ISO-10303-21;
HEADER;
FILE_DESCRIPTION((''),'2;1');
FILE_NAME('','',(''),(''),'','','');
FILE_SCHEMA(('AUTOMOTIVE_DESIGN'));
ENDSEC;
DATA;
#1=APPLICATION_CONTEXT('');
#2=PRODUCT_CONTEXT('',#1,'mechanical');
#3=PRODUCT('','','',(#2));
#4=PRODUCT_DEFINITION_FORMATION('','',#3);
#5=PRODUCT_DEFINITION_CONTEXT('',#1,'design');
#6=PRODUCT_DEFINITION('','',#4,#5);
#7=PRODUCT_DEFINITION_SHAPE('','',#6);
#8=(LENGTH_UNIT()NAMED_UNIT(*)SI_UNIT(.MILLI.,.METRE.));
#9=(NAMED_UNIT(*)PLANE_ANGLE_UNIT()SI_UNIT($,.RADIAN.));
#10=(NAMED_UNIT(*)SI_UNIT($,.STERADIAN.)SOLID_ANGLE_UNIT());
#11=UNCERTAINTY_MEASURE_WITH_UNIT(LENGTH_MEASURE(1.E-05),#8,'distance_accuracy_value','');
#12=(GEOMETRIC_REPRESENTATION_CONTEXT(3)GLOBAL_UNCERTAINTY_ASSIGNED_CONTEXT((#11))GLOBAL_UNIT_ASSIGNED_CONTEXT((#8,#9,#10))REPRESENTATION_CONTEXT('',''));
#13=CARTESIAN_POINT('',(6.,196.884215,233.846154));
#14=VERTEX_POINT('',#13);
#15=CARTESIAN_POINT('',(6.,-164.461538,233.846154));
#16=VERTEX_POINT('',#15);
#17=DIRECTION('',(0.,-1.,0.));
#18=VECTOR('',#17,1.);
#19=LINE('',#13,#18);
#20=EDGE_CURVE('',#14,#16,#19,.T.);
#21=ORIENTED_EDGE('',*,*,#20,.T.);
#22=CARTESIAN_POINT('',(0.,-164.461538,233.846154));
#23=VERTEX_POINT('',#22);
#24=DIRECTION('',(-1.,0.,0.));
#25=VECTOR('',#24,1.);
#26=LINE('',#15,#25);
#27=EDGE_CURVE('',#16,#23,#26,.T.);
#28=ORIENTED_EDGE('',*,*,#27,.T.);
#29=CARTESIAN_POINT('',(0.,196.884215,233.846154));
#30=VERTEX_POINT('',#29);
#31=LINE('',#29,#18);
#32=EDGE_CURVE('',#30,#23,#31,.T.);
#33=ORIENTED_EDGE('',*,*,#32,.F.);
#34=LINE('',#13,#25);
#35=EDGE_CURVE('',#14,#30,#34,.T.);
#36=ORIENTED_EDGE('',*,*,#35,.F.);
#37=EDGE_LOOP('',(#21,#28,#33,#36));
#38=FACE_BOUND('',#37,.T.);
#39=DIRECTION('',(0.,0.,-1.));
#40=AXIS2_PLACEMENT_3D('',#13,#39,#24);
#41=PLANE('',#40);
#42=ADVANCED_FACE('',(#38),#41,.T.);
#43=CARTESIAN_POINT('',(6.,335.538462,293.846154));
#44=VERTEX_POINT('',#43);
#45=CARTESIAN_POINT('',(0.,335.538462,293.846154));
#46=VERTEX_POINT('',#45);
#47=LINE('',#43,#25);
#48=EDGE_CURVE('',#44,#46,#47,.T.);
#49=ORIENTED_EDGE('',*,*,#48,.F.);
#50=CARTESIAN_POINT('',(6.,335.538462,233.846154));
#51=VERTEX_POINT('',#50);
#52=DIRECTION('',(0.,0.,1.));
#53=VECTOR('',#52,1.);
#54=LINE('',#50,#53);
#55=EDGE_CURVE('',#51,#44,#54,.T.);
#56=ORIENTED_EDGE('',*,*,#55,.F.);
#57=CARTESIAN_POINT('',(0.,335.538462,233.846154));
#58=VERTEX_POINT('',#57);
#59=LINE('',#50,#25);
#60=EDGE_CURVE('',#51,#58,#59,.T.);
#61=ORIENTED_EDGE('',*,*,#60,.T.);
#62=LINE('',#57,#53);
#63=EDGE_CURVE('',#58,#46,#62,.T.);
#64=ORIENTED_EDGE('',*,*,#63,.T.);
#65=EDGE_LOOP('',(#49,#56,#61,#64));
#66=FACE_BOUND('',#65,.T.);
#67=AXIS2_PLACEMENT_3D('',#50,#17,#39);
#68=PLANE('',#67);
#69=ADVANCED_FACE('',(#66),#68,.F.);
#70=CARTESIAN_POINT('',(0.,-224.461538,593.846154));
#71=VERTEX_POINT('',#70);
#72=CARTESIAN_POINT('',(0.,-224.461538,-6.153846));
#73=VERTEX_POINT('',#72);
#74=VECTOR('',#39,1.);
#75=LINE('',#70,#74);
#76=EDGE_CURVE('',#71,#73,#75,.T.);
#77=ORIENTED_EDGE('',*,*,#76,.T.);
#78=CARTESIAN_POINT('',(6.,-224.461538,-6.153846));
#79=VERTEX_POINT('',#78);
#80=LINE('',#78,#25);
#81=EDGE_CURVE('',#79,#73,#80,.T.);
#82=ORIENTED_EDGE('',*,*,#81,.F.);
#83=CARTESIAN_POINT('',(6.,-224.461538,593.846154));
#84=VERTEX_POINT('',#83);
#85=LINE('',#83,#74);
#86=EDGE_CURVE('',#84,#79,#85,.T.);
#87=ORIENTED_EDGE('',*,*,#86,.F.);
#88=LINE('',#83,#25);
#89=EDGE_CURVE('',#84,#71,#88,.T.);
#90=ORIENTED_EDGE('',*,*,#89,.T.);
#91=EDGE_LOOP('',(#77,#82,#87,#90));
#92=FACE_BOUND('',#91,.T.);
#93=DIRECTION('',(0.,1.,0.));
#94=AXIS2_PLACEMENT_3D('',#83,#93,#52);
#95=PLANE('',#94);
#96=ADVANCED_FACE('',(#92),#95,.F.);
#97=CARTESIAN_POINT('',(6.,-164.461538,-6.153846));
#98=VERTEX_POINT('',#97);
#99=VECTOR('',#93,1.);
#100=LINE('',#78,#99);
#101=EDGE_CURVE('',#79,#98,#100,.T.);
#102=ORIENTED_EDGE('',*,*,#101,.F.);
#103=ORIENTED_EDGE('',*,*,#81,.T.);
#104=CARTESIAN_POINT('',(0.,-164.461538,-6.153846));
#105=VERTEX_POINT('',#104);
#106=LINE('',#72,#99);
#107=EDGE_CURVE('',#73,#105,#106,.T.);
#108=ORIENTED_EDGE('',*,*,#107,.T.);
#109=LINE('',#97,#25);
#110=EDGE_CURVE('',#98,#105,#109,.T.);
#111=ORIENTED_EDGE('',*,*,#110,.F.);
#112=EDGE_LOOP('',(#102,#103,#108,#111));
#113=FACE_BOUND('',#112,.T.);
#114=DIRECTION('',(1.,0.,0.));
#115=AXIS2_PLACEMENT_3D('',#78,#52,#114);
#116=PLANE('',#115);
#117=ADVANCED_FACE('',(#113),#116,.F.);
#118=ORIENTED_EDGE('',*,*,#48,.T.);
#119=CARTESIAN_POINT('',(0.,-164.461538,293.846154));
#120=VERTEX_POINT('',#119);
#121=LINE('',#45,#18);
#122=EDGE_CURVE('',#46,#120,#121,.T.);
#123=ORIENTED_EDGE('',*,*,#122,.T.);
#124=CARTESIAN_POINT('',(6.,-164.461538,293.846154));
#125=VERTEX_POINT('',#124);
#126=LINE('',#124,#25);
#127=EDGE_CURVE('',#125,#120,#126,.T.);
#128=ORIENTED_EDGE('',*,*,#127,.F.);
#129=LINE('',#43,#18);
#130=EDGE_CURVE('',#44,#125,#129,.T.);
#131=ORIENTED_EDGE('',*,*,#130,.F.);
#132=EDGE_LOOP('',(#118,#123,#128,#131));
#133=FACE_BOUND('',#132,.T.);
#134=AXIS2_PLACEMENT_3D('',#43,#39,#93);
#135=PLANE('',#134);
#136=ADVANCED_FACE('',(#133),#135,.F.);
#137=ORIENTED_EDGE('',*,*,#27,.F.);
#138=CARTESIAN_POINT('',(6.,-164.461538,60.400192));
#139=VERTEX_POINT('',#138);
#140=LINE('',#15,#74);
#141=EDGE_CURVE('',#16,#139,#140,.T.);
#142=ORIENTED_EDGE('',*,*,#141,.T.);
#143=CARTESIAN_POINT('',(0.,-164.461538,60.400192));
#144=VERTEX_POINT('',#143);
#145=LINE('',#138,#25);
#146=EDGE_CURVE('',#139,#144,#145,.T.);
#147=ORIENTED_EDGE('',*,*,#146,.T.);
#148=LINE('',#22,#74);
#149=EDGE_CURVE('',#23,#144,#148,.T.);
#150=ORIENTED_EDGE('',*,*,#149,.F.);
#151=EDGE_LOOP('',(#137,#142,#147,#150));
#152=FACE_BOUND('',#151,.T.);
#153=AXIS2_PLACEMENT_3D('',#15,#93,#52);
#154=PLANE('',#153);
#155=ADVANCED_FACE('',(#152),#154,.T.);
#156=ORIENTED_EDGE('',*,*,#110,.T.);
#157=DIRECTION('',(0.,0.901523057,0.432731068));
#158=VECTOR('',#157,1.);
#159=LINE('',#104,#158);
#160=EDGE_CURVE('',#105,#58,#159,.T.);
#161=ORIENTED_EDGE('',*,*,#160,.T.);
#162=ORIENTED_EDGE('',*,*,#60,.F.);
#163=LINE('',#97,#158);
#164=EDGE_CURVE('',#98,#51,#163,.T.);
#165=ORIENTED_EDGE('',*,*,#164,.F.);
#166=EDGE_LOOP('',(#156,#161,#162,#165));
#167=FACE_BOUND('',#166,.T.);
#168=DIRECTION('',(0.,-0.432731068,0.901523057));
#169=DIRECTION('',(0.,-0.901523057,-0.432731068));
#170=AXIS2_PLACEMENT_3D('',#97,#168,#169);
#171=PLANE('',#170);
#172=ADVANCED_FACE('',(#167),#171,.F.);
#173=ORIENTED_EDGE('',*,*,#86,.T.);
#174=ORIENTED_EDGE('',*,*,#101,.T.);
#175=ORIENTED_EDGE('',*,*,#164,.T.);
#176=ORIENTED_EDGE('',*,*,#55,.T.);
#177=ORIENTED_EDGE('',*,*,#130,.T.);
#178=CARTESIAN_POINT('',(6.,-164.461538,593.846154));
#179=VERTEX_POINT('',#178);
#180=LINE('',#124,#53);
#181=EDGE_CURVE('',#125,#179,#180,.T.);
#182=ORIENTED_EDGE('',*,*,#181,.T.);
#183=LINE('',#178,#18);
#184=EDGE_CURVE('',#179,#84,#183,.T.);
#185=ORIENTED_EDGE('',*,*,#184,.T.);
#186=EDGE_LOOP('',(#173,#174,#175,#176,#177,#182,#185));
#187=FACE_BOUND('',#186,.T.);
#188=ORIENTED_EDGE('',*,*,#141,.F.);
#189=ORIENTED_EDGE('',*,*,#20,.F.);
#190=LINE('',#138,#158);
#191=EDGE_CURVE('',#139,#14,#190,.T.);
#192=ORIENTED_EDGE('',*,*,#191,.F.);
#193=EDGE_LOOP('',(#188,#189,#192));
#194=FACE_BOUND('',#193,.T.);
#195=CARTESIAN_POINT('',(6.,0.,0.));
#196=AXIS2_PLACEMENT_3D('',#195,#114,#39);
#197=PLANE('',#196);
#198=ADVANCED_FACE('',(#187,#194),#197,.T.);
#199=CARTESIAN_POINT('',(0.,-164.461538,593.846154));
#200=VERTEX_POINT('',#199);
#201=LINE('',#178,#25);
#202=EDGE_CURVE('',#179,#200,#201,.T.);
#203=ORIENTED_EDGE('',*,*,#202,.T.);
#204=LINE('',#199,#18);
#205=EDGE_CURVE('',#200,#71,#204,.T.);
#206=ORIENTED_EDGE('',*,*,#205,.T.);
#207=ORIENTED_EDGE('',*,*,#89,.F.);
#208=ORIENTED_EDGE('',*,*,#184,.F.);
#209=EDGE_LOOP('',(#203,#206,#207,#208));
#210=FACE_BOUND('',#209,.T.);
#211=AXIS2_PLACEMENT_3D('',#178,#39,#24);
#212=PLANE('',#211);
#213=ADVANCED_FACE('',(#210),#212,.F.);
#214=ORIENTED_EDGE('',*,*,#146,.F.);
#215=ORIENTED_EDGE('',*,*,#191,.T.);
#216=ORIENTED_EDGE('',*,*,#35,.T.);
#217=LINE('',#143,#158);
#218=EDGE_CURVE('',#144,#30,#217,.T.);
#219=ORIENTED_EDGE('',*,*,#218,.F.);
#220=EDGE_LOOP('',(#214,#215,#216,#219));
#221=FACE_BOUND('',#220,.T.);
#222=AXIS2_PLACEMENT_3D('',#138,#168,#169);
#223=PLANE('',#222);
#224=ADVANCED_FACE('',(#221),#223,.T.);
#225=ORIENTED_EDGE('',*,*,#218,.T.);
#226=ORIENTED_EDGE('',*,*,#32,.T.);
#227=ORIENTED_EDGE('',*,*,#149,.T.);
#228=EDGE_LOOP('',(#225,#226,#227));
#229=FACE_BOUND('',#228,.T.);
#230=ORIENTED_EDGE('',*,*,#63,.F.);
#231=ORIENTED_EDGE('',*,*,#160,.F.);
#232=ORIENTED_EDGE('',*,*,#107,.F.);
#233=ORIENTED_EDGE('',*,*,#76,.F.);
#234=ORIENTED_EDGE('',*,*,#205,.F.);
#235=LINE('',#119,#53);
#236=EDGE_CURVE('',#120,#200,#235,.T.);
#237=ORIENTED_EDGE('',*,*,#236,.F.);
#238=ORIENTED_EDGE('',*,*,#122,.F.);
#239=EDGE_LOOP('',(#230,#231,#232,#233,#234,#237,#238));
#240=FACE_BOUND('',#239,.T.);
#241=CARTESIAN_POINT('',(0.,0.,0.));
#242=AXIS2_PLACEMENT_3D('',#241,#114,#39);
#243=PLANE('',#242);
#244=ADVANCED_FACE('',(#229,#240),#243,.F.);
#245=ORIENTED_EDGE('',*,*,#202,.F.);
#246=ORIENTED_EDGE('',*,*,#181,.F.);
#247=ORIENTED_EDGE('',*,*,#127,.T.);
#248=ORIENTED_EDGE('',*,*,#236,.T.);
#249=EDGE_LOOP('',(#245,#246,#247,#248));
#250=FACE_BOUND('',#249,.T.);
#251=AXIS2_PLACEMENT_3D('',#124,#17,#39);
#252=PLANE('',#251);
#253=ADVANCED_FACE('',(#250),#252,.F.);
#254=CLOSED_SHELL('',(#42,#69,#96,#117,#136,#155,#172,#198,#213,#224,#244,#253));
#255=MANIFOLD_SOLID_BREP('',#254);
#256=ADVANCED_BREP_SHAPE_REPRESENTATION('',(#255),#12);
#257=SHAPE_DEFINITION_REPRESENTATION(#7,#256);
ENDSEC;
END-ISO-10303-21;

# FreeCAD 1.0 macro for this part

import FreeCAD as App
import Part
import Sketcher
Q = App.Units.Quantity

doc = App.newDocument("Part")
body = doc.addObject("PartDesign::Body", "Body")

sketch1 = doc.addObject("Sketcher::SketchObject", "Sketch")
body.addObject(sketch1)
sketch1.AttachmentSupport = (doc.YZ_Plane, [""])
sketch1.MapMode = "FlatFace"
sketch1.addGeometry([
    Part.LineSegment(App.Vector(-224, 594, 0), App.Vector(-224, -6, 0)),
    Part.LineSegment(App.Vector(-224, -6, 0), App.Vector(-164, -6, 0)),
    Part.LineSegment(App.Vector(-164, -6, 0), App.Vector(336, 234, 0)),
    Part.LineSegment(App.Vector(336, 234, 0), App.Vector(336, 294, 0)),
    Part.LineSegment(App.Vector(336, 294, 0), App.Vector(-164, 294, 0)),
    Part.LineSegment(App.Vector(-164, 294, 0), App.Vector(-164, 594, 0)),
    Part.LineSegment(App.Vector(-164, 594, 0), App.Vector(-224, 594, 0)),
    Part.LineSegment(App.Vector(-164, 60, 0), App.Vector(-164, 234, 0)),
    Part.LineSegment(App.Vector(-164, 234, 0), App.Vector(197, 234, 0)),
    Part.LineSegment(App.Vector(197, 234, 0), App.Vector(-164, 60, 0)),
], False)
sketch1.addConstraint([
    Sketcher.Constraint("Coincident", 0, 2, 1, 1),
    Sketcher.Constraint("Coincident", 1, 2, 2, 1),
    Sketcher.Constraint("Coincident", 2, 2, 3, 1),
    Sketcher.Constraint("Coincident", 3, 2, 4, 1),
    Sketcher.Constraint("Coincident", 4, 2, 5, 1),
    Sketcher.Constraint("Coincident", 5, 2, 6, 1),
    Sketcher.Constraint("Coincident", 6, 2, 0, 1),
    Sketcher.Constraint("Coincident", 7, 2, 8, 1),
    Sketcher.Constraint("Coincident", 8, 2, 9, 1),
    Sketcher.Constraint("Coincident", 9, 2, 7, 1),
    Sketcher.Constraint("Vertical", 0),
    Sketcher.Constraint("Horizontal", 1),
    Sketcher.Constraint("Vertical", 3),
    Sketcher.Constraint("Horizontal", 4),
    Sketcher.Constraint("Vertical", 5),
    Sketcher.Constraint("Horizontal", 6),
    Sketcher.Constraint("Vertical", 7),
    Sketcher.Constraint("Horizontal", 8),
    Sketcher.Constraint("Parallel", 2, 9),
    Sketcher.Constraint("Horizontal", 2, 2, 7, 2),
    Sketcher.Constraint("Vertical", 1, 2, 4, 2),
    Sketcher.Constraint("Vertical", 5, 2, 7, 2),
    Sketcher.Constraint("Equal", 6, 3),
    Sketcher.Constraint("DistanceX", 1, 1, 1, 2, Q("60 mm")),
    Sketcher.Constraint("DistanceX", 4, 2, 4, 1, Q("500 mm")),
    Sketcher.Constraint("DistanceY", 0, 2, 0, 1, Q("600 mm")),
    Sketcher.Constraint("DistanceY", 5, 1, 5, 2, Q("300 mm")),
    Sketcher.Constraint("DistanceY", 7, 1, 7, 2, Q("173.445962 mm")),
    Sketcher.Constraint("DistanceX", 0, 2, -1, 1, Q("224.461538 mm")),
    Sketcher.Constraint("DistanceY", 0, 2, -1, 1, Q("6.153846 mm")),
])
pad1 = doc.addObject("PartDesign::Pad", "Pad")
body.addObject(pad1)
pad1.Profile = sketch1
pad1.Length = 6

doc.recompute()
